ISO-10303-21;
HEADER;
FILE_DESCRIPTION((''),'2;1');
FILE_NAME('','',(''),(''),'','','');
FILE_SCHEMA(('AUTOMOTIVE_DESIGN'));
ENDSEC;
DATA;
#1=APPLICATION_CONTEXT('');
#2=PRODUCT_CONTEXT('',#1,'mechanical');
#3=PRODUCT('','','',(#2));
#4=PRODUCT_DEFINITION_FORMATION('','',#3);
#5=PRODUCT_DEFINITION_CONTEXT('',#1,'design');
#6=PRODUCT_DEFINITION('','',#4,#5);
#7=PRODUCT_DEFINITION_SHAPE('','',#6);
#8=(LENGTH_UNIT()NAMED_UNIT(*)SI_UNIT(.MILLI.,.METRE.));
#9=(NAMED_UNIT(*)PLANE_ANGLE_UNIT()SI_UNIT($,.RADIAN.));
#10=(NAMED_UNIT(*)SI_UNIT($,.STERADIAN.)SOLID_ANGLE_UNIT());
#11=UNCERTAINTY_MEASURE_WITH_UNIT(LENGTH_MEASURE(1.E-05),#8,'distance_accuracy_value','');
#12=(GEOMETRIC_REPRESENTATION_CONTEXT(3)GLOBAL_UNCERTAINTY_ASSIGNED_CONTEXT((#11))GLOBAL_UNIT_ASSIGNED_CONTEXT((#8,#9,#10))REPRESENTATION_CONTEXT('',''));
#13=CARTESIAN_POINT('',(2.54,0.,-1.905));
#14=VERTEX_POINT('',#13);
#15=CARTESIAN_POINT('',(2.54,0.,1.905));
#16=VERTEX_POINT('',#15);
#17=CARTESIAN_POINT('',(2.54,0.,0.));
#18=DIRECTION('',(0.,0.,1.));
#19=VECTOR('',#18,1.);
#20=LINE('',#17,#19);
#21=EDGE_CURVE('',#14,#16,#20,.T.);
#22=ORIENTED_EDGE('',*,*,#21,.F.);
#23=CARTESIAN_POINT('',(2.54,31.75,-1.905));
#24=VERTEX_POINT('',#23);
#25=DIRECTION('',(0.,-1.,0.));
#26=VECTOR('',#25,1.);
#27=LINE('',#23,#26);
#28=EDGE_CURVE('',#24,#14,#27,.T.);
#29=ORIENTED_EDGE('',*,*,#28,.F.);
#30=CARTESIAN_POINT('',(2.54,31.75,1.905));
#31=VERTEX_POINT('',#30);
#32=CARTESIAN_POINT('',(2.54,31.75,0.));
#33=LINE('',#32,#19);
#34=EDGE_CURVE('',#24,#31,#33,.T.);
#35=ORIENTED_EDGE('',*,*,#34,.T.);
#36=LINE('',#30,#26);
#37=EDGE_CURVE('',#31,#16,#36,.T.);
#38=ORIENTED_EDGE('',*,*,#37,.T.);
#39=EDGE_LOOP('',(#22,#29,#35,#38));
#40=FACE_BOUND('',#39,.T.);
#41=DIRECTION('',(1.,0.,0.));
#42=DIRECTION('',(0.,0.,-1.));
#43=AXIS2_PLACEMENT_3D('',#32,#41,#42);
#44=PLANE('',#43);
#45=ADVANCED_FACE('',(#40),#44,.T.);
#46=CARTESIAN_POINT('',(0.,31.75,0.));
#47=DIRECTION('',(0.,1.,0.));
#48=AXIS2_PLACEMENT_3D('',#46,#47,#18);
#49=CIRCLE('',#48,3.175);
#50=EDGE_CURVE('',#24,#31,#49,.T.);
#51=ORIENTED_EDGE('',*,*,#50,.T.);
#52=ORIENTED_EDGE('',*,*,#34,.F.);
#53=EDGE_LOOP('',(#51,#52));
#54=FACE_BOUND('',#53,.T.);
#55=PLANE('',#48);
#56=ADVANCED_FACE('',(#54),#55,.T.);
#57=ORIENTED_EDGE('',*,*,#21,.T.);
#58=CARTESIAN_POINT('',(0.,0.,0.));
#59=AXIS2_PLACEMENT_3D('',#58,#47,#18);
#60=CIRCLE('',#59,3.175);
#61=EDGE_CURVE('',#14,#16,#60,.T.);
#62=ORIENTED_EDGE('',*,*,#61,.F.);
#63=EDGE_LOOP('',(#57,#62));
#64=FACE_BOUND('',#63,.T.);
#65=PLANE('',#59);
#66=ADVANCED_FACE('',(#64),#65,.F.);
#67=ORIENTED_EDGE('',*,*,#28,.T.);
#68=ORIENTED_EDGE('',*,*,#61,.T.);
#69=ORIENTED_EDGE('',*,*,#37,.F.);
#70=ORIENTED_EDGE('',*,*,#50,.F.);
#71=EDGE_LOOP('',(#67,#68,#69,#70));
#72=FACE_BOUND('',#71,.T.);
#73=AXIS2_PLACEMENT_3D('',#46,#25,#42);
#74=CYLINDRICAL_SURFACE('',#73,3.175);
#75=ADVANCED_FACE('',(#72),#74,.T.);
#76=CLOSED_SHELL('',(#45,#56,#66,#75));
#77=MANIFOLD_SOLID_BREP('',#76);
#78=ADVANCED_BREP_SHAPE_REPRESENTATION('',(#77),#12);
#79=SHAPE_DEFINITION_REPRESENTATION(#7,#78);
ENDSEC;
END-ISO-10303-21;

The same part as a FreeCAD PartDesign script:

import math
import FreeCAD as App
import Part
import Sketcher
from FreeCAD import Vector
Q = App.Units.Quantity

doc = App.newDocument("Part")
body = doc.addObject("PartDesign::Body", "Body")

# Sketch on XZ plane
sketch1 = body.newObject("Sketcher::SketchObject", "Sketch")
sketch1.AttachmentSupport = (doc.getObject("XZ_Plane"), [""])
sketch1.MapMode = "FlatFace"
sketch1.addGeometry([
    Part.LineSegment(Vector(2.5, 1.9, 0), Vector(2.5, -1.9, 0)),
    Part.ArcOfCircle(Part.Circle(Vector(0, 0, 0), Vector(0, 0, 1), 3.2), math.radians(37), math.radians(323)),
], False)
sketch1.addConstraint([
    Sketcher.Constraint("Coincident", 0, 1, 1, 1),
    Sketcher.Constraint("Coincident", 1, 2, 0, 2),
    Sketcher.Constraint("Vertical", 0),
    Sketcher.Constraint("Coincident", 1, 3, -1, 1),
    Sketcher.Constraint("Radius", 1, Q("0.125 in")),
    Sketcher.Constraint("DistanceY", 0, 2, 0, 1, Q("0.15 in")),
])
pad1 = body.newObject("PartDesign::Pad", "Pad")
pad1.Profile = sketch1
pad1.Length = Q("1.25 in")
pad1.Reversed = True

doc.recompute()
